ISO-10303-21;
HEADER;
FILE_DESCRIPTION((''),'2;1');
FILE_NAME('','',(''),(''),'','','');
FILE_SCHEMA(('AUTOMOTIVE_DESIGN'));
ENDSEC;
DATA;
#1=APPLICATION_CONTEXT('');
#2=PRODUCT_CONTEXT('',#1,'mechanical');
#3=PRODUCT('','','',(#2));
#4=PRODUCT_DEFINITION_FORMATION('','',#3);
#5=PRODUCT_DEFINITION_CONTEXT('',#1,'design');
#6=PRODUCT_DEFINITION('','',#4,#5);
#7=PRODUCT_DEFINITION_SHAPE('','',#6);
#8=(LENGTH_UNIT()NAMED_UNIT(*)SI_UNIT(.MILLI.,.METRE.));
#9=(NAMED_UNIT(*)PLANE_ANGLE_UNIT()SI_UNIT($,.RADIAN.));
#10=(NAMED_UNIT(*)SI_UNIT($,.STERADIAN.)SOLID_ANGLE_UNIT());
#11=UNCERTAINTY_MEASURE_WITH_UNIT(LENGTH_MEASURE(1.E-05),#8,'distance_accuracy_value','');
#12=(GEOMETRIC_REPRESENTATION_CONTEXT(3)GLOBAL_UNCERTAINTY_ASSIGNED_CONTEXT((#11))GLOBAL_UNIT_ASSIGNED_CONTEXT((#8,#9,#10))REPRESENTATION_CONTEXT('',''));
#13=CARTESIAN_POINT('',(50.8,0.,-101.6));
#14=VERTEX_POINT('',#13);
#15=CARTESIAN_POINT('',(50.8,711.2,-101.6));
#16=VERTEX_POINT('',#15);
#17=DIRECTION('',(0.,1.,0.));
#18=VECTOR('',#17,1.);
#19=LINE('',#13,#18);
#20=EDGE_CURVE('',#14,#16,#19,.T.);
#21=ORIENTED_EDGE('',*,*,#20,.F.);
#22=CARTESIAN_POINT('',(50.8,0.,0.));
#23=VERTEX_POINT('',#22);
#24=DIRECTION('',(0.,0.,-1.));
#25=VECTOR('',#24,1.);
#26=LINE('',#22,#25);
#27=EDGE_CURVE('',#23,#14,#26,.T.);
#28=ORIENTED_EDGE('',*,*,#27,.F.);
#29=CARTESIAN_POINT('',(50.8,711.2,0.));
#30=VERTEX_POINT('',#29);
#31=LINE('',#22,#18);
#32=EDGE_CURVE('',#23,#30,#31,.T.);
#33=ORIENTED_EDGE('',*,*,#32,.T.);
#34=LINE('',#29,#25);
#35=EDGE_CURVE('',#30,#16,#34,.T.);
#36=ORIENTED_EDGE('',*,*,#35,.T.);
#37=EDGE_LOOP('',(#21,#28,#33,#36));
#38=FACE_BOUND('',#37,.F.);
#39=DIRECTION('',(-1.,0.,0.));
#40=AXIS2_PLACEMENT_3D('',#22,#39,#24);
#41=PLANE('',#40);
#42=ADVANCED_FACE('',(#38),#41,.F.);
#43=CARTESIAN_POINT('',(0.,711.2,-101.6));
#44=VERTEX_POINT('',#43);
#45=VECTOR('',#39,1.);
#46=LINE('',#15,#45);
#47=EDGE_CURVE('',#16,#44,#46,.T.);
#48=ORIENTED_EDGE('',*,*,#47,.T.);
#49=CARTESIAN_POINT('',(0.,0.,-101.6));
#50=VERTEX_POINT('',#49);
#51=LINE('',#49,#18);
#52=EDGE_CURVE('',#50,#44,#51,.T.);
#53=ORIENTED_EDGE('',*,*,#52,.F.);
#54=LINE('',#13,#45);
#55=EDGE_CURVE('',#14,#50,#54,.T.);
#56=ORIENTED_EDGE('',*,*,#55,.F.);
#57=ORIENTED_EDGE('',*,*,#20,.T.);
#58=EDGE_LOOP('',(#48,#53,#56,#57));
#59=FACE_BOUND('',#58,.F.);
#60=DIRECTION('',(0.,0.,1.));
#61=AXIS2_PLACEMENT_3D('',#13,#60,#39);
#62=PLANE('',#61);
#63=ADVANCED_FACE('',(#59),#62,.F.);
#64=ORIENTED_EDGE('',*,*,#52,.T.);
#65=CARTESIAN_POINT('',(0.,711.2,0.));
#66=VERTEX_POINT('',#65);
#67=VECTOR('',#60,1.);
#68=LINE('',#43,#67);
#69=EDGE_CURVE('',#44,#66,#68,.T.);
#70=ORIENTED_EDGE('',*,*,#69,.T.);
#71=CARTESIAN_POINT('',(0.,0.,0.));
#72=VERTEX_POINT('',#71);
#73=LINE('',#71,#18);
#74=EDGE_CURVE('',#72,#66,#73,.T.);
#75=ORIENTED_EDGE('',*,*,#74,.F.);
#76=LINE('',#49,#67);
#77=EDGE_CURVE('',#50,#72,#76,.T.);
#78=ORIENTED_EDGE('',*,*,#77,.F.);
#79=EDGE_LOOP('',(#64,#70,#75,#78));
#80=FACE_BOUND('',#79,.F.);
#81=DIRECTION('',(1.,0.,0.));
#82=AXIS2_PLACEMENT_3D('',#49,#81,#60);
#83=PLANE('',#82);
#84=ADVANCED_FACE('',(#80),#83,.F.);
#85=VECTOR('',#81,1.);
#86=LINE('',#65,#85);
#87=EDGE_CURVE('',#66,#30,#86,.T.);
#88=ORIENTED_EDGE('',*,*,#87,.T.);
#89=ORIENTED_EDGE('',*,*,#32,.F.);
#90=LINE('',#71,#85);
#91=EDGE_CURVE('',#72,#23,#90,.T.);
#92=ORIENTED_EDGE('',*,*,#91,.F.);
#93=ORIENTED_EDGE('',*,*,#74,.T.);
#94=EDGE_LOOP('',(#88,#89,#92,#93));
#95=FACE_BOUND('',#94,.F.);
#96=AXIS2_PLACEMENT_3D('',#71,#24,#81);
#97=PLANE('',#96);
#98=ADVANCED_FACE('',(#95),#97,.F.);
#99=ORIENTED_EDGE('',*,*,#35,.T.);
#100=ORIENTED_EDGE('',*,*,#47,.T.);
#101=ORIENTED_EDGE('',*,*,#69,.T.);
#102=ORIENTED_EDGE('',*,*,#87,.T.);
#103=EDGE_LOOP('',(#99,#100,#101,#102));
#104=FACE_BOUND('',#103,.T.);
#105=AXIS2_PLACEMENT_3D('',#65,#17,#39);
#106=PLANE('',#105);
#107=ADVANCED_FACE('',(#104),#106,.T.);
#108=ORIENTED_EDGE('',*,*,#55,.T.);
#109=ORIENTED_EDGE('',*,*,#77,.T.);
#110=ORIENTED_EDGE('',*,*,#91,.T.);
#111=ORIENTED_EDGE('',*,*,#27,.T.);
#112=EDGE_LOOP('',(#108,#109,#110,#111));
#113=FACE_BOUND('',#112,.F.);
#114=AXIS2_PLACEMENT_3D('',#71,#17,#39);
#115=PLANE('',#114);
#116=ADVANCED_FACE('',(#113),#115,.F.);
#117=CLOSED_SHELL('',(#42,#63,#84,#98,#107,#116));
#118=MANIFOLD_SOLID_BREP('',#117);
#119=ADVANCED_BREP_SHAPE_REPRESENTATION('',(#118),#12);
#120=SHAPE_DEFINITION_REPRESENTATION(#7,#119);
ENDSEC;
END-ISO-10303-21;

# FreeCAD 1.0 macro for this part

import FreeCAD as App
import Part
import Sketcher
Q = App.Units.Quantity

doc = App.newDocument("Part")
body = doc.addObject("PartDesign::Body", "Body")

# Sketch on XZ plane
sketch1 = doc.addObject("Sketcher::SketchObject", "Sketch")
body.addObject(sketch1)
sketch1.AttachmentSupport = (doc.XZ_Plane, [""])
sketch1.MapMode = "FlatFace"
sketch1.addGeometry([
    Part.LineSegment(App.Vector(0, -102, 0), App.Vector(0, 0, 0)),
    Part.LineSegment(App.Vector(0, 0, 0), App.Vector(51, 0, 0)),
    Part.LineSegment(App.Vector(51, 0, 0), App.Vector(51, -102, 0)),
    Part.LineSegment(App.Vector(51, -102, 0), App.Vector(0, -102, 0)),
], False)
sketch1.addConstraint([
    Sketcher.Constraint("Coincident", 0, 2, 1, 1),
    Sketcher.Constraint("Coincident", 1, 2, 2, 1),
    Sketcher.Constraint("Coincident", 2, 2, 3, 1),
    Sketcher.Constraint("Coincident", 3, 2, 0, 1),
    Sketcher.Constraint("Vertical", 0),
    Sketcher.Constraint("Horizontal", 1),
    Sketcher.Constraint("Vertical", 2),
    Sketcher.Constraint("Horizontal", 3),
    Sketcher.Constraint("Coincident", 0, 2, -1, 1),
    Sketcher.Constraint("DistanceX", 1, 1, 1, 2, Q("2 in")),
    Sketcher.Constraint("DistanceY", 0, 1, 0, 2, Q("4 in")),
])
pad1 = doc.addObject("PartDesign::Pad", "Pad")
body.addObject(pad1)
pad1.Profile = sketch1
pad1.Length = Q("28 in")
pad1.Reversed = True

doc.recompute()
